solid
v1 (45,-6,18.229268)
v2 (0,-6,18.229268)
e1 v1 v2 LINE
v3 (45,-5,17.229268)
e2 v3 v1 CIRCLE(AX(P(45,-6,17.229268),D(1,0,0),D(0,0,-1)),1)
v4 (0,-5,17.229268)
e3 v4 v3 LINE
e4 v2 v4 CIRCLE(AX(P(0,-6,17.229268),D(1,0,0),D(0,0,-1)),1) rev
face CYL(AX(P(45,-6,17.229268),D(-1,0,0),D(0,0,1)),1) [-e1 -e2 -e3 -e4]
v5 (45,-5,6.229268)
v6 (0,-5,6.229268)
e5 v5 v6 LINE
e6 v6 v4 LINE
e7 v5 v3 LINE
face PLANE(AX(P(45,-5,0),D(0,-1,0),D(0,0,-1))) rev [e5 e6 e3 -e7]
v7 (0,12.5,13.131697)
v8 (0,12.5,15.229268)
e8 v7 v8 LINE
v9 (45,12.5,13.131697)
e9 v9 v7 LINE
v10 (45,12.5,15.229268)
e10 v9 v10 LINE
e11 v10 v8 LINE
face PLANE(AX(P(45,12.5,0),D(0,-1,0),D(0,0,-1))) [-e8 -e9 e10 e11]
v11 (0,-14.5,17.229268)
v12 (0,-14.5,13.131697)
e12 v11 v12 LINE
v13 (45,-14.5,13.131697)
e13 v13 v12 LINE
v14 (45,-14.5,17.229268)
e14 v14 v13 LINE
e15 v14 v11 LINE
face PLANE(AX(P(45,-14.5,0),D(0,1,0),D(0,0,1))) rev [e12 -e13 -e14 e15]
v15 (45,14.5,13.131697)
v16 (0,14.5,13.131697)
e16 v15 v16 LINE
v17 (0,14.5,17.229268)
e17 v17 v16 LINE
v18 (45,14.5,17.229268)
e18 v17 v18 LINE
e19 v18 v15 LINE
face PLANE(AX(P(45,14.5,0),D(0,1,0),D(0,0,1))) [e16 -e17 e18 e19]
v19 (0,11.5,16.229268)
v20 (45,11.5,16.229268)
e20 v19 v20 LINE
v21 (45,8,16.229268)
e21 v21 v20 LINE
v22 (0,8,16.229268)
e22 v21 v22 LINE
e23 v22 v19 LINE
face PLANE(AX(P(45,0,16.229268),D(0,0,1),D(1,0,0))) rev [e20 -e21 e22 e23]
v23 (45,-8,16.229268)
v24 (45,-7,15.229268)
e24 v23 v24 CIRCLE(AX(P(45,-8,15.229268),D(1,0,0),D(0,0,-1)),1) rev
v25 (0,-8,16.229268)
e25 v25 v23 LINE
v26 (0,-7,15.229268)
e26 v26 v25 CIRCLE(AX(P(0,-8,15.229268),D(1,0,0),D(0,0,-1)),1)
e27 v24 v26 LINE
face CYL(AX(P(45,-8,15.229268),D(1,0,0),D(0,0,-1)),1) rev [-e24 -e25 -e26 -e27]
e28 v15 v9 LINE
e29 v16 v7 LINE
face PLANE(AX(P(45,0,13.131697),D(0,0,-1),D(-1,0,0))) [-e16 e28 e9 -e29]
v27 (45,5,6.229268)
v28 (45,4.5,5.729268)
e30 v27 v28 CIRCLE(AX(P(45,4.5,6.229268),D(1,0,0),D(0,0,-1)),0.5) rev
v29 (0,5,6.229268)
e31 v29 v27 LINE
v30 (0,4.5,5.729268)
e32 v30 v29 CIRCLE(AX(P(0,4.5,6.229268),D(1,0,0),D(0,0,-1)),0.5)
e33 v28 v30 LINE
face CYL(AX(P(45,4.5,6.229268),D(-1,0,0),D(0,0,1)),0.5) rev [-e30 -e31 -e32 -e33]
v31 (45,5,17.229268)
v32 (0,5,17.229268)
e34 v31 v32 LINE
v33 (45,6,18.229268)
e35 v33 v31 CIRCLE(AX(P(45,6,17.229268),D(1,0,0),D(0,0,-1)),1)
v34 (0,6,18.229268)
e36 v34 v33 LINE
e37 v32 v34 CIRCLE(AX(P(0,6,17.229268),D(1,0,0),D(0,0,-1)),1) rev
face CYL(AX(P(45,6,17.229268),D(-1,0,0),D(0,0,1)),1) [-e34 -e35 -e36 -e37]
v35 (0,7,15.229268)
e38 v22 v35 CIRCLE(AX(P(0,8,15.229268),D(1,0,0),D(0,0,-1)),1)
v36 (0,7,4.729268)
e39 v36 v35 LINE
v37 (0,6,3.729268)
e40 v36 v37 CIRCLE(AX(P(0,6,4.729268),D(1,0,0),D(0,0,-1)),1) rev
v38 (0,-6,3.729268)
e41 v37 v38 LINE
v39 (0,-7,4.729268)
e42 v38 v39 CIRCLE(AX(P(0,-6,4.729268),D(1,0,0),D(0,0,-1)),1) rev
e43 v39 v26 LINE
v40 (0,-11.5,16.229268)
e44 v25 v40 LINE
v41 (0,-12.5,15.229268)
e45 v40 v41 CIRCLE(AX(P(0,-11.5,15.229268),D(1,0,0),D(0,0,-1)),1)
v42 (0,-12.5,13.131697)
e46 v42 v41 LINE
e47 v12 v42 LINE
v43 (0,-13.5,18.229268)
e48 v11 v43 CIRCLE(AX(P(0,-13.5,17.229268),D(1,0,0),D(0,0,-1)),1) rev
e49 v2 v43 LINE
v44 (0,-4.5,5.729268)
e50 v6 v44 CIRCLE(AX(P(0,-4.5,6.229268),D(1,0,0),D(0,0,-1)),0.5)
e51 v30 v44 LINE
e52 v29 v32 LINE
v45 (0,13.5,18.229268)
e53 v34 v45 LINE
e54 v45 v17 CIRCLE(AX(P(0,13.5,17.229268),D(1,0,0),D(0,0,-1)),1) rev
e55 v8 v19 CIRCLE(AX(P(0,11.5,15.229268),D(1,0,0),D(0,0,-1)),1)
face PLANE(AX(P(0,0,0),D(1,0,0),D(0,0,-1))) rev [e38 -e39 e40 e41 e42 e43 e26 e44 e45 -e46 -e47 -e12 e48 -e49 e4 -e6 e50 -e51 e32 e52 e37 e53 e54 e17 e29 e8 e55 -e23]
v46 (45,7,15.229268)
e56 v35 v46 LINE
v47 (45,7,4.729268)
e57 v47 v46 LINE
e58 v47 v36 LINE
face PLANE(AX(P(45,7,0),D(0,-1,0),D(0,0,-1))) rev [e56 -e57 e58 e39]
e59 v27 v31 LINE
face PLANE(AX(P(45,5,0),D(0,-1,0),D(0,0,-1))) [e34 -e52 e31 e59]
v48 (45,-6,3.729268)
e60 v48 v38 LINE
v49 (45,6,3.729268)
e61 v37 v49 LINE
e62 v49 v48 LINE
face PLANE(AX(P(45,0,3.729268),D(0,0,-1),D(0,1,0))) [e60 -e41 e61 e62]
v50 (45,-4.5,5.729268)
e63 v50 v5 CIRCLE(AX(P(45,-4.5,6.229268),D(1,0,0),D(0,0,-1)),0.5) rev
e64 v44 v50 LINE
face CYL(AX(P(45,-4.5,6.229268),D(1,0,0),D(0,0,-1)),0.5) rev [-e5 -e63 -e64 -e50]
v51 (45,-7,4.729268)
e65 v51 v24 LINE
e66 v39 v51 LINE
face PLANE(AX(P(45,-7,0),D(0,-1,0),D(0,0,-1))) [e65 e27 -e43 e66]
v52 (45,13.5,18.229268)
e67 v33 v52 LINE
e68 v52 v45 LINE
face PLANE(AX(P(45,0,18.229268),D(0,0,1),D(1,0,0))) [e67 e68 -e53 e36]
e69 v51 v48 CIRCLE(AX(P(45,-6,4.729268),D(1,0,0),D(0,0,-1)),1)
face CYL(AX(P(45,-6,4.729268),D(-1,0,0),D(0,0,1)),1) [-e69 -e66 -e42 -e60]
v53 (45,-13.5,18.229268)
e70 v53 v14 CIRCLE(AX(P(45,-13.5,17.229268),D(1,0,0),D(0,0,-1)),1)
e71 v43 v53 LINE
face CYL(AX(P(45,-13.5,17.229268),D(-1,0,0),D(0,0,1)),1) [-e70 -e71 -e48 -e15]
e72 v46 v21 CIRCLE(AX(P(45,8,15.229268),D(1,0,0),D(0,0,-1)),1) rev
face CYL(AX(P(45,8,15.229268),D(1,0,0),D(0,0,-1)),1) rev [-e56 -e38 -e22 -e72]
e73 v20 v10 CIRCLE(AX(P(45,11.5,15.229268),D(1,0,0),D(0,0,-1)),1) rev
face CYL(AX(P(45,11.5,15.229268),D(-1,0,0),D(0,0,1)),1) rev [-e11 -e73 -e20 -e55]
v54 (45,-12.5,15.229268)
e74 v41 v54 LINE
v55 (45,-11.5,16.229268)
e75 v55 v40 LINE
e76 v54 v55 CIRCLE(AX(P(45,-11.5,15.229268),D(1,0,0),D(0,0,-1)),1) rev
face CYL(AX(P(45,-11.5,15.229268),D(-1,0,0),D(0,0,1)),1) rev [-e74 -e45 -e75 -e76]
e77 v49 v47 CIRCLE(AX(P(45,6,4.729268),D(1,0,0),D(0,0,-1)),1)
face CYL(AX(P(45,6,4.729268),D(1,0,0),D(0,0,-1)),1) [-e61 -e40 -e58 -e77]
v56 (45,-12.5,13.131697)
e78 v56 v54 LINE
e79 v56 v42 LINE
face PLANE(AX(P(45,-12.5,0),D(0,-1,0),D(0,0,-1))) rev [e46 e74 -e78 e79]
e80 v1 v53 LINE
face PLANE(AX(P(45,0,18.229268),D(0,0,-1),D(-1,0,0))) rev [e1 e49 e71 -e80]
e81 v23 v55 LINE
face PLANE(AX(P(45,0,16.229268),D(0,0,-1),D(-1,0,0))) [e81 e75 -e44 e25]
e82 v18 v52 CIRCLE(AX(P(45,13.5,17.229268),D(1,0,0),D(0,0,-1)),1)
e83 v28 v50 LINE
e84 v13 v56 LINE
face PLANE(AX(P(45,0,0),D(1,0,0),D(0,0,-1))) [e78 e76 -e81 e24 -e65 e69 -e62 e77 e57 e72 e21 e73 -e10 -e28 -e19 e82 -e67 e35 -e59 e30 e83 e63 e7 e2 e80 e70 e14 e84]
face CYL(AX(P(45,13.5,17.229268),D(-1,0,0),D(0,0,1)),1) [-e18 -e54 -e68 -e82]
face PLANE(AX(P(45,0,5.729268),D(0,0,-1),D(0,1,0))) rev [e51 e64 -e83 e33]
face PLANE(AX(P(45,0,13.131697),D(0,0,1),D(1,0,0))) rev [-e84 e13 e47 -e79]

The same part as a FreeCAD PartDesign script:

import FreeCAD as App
import Part
import Sketcher


def edges_at(feature, points):
    """Names of the edges that pass closest to the given points."""
    edges = feature.Shape.Edges
    near = lambda p: min(range(len(edges)), key=lambda i: edges[i].distToShape(Part.Vertex(*p))[0])
    return sorted({f"Edge{near(p) + 1}" for p in points})


def add_polygon(sketch, points):
    """Adds a closed chain of lines whose ends are joined by coincident constraints."""
    first, n = sketch.GeometryCount, len(points)
    for a, b in zip(points, points[1:] + points[:1]):
        sketch.addGeometry(Part.LineSegment(App.Vector(*a, 0), App.Vector(*b, 0)), False)
    for i in range(n):
        sketch.addConstraint(Sketcher.Constraint("Coincident", first + i, 2, first + (i + 1) % n, 1))

doc = App.newDocument("Part")
body = doc.addObject("PartDesign::Body", "Body")

# Sketch on YZ plane
sketch1 = doc.addObject("Sketcher::SketchObject", "Sketch")
body.addObject(sketch1)
sketch1.AttachmentSupport = (doc.YZ_Plane, [""])
sketch1.MapMode = "FlatFace"
add_polygon(sketch1, [(-5, 5.7), (-5, 18.2), (-14.5, 18.2), (-14.5, 13.1), (-12.5, 13.1), (-12.5, 16.2), (-7, 16.2), (-7, 3.7), (7, 3.7), (7, 16.2), (12.5, 16.2), (12.5, 13.1), (14.5, 13.1), (14.5, 18.2), (5, 18.2), (5, 5.7)])  # lines 0-15
sketch1.addConstraint(Sketcher.Constraint("Vertical", 0))
sketch1.addConstraint(Sketcher.Constraint("Horizontal", 1))
sketch1.addConstraint(Sketcher.Constraint("Vertical", 2))
sketch1.addConstraint(Sketcher.Constraint("Horizontal", 3))
sketch1.addConstraint(Sketcher.Constraint("Vertical", 4))
sketch1.addConstraint(Sketcher.Constraint("Horizontal", 5))
sketch1.addConstraint(Sketcher.Constraint("Vertical", 6))
sketch1.addConstraint(Sketcher.Constraint("Horizontal", 7))
sketch1.addConstraint(Sketcher.Constraint("Vertical", 8))
sketch1.addConstraint(Sketcher.Constraint("Horizontal", 9))
sketch1.addConstraint(Sketcher.Constraint("Vertical", 10))
sketch1.addConstraint(Sketcher.Constraint("Horizontal", 11))
sketch1.addConstraint(Sketcher.Constraint("Vertical", 12))
sketch1.addConstraint(Sketcher.Constraint("Horizontal", 13))
sketch1.addConstraint(Sketcher.Constraint("Vertical", 14))
sketch1.addConstraint(Sketcher.Constraint("Horizontal", 15))
sketch1.addConstraint(Sketcher.Constraint("Symmetric", 5, 2, 8, 2, -2))
sketch1.addConstraint(Sketcher.Constraint("Symmetric", 3, 2, 10, 2, -2))
sketch1.addConstraint(Sketcher.Constraint("Symmetric", 1, 2, 12, 2, -2))
sketch1.addConstraint(Sketcher.Constraint("Equal", 1, 13))
sketch1.addConstraint(Sketcher.Constraint("Equal", 0, 6))
sketch1.addConstraint(Sketcher.Constraint("DistanceX", 3, 1, 3, 2, 2.0))
sketch1.addConstraint(Sketcher.Constraint("DistanceX", 7, 1, 7, 2, 14.0))
sketch1.addConstraint(Sketcher.Constraint("DistanceX", 15, 2, 15, 1, 10.0))
sketch1.addConstraint(Sketcher.Constraint("DistanceX", 1, 2, 1, 1, 9.5))
sketch1.addConstraint(Sketcher.Constraint("DistanceY", 0, 1, 0, 2, 12.5))
sketch1.addConstraint(Sketcher.Constraint("DistanceY", 4, 2, 1, 2, 2.0))
sketch1.addConstraint(Sketcher.Constraint("DistanceY", 2, 2, 2, 1, 5.097571))
sketch1.addConstraint(Sketcher.Constraint("DistanceY", -1, 1, 0, 2, 18.229268))
pad1 = doc.addObject("PartDesign::Pad", "Pad")
body.addObject(pad1)
pad1.Profile = sketch1
pad1.Length = 45
doc.recompute()

fillet = doc.addObject("PartDesign::Fillet", "Fillet")
body.addObject(fillet)
fillet.Base = (pad1, edges_at(pad1, [
    (22.5, -14.5, 18.229),
    (22.5, -5, 18.229),
    (22.5, 5, 18.229),
    (22.5, 14.5, 18.229),
    (22.5, 12.5, 16.229),
    (22.5, 7, 16.229),
    (22.5, 7, 3.729),
    (22.5, -7, 3.729),
    (22.5, -7, 16.229),
    (22.5, -12.5, 16.229),
]))
fillet.Radius = 1
doc.recompute()

fillet2 = doc.addObject("PartDesign::Fillet", "Fillet001")
body.addObject(fillet2)
fillet2.Base = (fillet, edges_at(fillet, [(22.5, -5, 5.729), (22.5, 5, 5.729)]))
fillet2.Radius = 0.5

doc.recompute()
